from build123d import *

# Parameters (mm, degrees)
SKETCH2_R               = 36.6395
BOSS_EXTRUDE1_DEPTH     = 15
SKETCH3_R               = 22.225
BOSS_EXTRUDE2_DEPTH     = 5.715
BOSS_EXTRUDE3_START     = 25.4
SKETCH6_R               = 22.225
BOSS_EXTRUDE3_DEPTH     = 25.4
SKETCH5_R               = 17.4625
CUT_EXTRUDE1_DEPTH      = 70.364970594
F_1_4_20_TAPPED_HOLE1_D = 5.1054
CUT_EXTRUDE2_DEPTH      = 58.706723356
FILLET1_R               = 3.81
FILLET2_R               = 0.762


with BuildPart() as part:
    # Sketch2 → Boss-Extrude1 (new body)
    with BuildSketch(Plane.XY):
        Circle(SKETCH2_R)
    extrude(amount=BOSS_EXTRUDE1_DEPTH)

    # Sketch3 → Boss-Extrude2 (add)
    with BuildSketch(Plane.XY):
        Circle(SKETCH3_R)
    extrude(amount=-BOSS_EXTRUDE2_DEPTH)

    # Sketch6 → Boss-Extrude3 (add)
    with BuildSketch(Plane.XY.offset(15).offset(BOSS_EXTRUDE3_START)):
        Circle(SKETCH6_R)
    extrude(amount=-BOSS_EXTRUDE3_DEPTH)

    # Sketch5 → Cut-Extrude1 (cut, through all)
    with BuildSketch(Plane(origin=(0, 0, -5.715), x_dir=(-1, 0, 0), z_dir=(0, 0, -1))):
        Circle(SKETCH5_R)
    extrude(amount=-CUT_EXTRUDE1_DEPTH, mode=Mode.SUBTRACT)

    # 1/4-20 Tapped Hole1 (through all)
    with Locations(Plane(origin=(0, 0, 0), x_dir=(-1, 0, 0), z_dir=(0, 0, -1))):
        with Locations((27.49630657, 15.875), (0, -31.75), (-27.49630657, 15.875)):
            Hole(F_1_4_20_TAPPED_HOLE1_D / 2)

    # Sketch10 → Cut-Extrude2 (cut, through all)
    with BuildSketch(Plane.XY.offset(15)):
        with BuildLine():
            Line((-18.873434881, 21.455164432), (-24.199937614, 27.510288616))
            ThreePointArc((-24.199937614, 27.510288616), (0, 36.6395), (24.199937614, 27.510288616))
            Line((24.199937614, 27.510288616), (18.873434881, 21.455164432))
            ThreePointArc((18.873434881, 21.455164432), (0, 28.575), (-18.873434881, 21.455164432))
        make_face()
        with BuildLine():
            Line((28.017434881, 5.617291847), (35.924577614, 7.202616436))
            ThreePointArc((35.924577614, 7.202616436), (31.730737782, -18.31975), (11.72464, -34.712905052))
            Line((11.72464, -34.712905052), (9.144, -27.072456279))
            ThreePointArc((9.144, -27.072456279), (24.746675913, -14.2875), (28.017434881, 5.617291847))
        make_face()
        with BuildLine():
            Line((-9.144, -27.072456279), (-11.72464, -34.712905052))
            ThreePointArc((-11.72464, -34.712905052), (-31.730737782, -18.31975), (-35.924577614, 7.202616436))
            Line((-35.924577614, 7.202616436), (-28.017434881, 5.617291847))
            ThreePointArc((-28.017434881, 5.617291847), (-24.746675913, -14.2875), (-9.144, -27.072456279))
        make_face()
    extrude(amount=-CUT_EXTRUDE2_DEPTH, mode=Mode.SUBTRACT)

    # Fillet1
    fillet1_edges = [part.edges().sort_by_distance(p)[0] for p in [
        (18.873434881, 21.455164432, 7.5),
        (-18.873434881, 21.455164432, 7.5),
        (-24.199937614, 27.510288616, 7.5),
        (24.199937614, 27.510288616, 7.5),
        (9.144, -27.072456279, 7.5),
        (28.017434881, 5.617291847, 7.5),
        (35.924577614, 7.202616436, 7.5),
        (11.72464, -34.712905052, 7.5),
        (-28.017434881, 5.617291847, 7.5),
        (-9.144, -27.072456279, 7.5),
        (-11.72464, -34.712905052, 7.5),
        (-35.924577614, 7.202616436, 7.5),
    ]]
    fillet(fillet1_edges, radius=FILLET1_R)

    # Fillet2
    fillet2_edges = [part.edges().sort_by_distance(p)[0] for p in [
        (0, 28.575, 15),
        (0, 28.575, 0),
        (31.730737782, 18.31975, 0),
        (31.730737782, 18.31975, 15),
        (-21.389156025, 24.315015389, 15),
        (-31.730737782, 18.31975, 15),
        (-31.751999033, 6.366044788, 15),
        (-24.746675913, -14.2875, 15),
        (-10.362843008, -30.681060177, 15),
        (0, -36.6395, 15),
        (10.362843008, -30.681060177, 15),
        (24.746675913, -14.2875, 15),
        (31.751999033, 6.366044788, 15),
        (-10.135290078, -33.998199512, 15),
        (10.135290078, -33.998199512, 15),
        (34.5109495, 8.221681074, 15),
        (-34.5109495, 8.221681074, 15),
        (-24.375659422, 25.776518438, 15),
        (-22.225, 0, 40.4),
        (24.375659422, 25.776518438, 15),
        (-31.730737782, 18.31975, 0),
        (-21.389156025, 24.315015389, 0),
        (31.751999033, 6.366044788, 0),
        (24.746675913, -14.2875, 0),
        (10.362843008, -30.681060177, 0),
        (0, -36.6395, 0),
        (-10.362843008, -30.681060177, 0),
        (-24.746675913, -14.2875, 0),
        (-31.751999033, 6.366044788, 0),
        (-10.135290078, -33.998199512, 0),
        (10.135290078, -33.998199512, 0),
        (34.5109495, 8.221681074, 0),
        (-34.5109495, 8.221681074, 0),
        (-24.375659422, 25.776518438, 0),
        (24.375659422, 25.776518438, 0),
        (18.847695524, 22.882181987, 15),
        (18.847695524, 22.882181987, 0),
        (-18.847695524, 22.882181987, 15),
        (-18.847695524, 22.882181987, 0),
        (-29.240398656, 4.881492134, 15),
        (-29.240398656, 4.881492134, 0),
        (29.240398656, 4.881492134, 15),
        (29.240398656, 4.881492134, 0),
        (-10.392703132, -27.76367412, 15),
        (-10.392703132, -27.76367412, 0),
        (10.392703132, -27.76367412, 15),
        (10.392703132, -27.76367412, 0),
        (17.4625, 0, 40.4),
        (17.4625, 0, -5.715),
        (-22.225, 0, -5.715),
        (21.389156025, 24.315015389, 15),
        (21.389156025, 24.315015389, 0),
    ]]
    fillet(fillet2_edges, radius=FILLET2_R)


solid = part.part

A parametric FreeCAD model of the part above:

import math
import FreeCAD as App
import Part
import Sketcher
Q = App.Units.Quantity


def edges_at(feature, points):
    """Names of the edges that pass closest to the given points."""
    edges = feature.Shape.Edges
    near = lambda p: min(range(len(edges)), key=lambda i: edges[i].distToShape(Part.Vertex(*p))[0])
    return sorted({f"Edge{near(p) + 1}" for p in points})

doc = App.newDocument("Part")
body = doc.addObject("PartDesign::Body", "Body")

sketch1 = body.newObject("Sketcher::SketchObject", "Sketch")
sketch1.AttachmentSupport = (doc.getObject("XY_Plane"), [""])
sketch1.MapMode = "FlatFace"
sketch1.addGeometry(Part.Circle(App.Vector(0, 0, 0), App.Vector(0, 0, 1), 37), False)
sketch1.addConstraint([
    Sketcher.Constraint("Coincident", 0, 3, -1, 1),
    Sketcher.Constraint("Diameter", 0, Q("2.885 in")),
])
pad1 = body.newObject("PartDesign::Pad", "Pad")
pad1.Profile = sketch1
pad1.Length = 15

sketch2 = body.newObject("Sketcher::SketchObject", "Sketch001")
sketch2.AttachmentSupport = (doc.getObject("XY_Plane"), [""])
sketch2.MapMode = "FlatFace"
sketch2.addGeometry(Part.Circle(App.Vector(0, 0, 0), App.Vector(0, 0, 1), 22), False)
sketch2.addConstraint([
    Sketcher.Constraint("Coincident", 0, 3, -1, 1),
    Sketcher.Constraint("Diameter", 0, Q("1.75 in")),
])
pad2 = body.newObject("PartDesign::Pad", "Pad001")
pad2.Profile = sketch2
pad2.Length = Q("0.225 in")
pad2.Reversed = True

sketch3 = body.newObject("Sketcher::SketchObject", "Sketch002")
sketch3.AttachmentSupport = (doc.getObject("XY_Plane"), [""])
sketch3.MapMode = "FlatFace"
sketch3.AttachmentOffset = App.Placement(App.Vector(0, 0, 40.4), App.Rotation())
sketch3.addGeometry(Part.Circle(App.Vector(0, 0, 0), App.Vector(0, 0, 1), 22), False)
sketch3.addConstraint([
    Sketcher.Constraint("Coincident", 0, 3, -1, 1),
    Sketcher.Constraint("Diameter", 0, Q("1.75 in")),
])
pad3 = body.newObject("PartDesign::Pad", "Pad002")
pad3.Profile = sketch3
pad3.Length = Q("1 in")
pad3.Reversed = True

sketch4 = body.newObject("Sketcher::SketchObject", "Sketch003")
sketch4.AttachmentSupport = (doc.getObject("XY_Plane"), [""])
sketch4.MapMode = "FlatFace"
sketch4.AttachmentOffset = App.Placement(App.Vector(0, 0, -0.225 * 25.4), App.Rotation())
sketch4.addGeometry(Part.Circle(App.Vector(0, 0, 0), App.Vector(0, 0, 1), 17), False)
sketch4.addConstraint([
    Sketcher.Constraint("Coincident", 0, 3, -1, 1),
    Sketcher.Constraint("Diameter", 0, Q("1.375 in")),
])
pocket1 = body.newObject("PartDesign::Pocket", "Pocket")
pocket1.Profile = sketch4
pocket1.Type = "ThroughAll"
pocket1.Reversed = True

sketch5 = body.newObject("Sketcher::SketchObject", "Sketch004")
sketch5.AttachmentSupport = (doc.getObject("XY_Plane"), [""])
sketch5.MapMode = "FlatFace"
sketch5.addGeometry([
    Part.Circle(App.Vector(-27.5, 15.9, 0), App.Vector(0, 0, 1), 2.6),
    Part.Circle(App.Vector(0, -31.8, 0), App.Vector(0, 0, 1), 2.6),
    Part.Circle(App.Vector(27.5, 15.9, 0), App.Vector(0, 0, 1), 2.6),
], False)
sketch5.addConstraint([
    Sketcher.Constraint("Equal", 0, 1),
    Sketcher.Constraint("Equal", 1, 2),
    Sketcher.Constraint("Symmetric", 0, 3, 2, 3, -2),
    Sketcher.Constraint("PointOnObject", 1, 3, -2),
    Sketcher.Constraint("Diameter", 0, Q("0.201 in")),
    Sketcher.Constraint("DistanceY", 1, 3, -1, 1, Q("1.25 in")),
    Sketcher.Constraint("DistanceY", -1, 1, 0, 3, Q("0.625 in")),
    Sketcher.Constraint("DistanceX", 0, 3, -1, 1, Q("27.496307 mm")),
])
doc.recompute()
hole = body.newObject("PartDesign::Hole", "Hole")
hole.Profile = sketch5
hole.ThreadType = "None"
hole.Diameter = Q("0.201 in")
hole.DepthType = "ThroughAll"
hole.Reversed = True

sketch6 = body.newObject("Sketcher::SketchObject", "Sketch005")
sketch6.AttachmentSupport = (doc.getObject("XY_Plane"), [""])
sketch6.MapMode = "FlatFace"
sketch6.AttachmentOffset = App.Placement(App.Vector(0, 0, 15), App.Rotation())
sketch6.addGeometry([
    Part.LineSegment(App.Vector(-24, 28, 0), App.Vector(-19, 21, 0)),
    Part.ArcOfCircle(Part.Circle(App.Vector(0, 0, 0), App.Vector(0, 0, 1), 29), math.radians(49), math.radians(131)),
    Part.LineSegment(App.Vector(19, 21, 0), App.Vector(24, 28, 0)),
    Part.ArcOfCircle(Part.Circle(App.Vector(0, 0, 0), App.Vector(0, 0, 1), 37), math.radians(49), math.radians(131)),
    Part.LineSegment(App.Vector(36, 7, 0), App.Vector(28, 6, 0)),
    Part.ArcOfCircle(Part.Circle(App.Vector(0, 0, 0), App.Vector(0, 0, 1), 29), math.radians(-71), math.radians(11)),
    Part.LineSegment(App.Vector(9, -27, 0), App.Vector(12, -35, 0)),
    Part.ArcOfCircle(Part.Circle(App.Vector(0, 0, 0), App.Vector(0, 0, 1), 37), math.radians(-71), math.radians(11)),
    Part.LineSegment(App.Vector(-12, -35, 0), App.Vector(-9, -27, 0)),
    Part.ArcOfCircle(Part.Circle(App.Vector(0, 0, 0), App.Vector(0, 0, 1), 29), math.radians(169), math.radians(251)),
    Part.LineSegment(App.Vector(-28, 6, 0), App.Vector(-36, 7, 0)),
    Part.ArcOfCircle(Part.Circle(App.Vector(0, 0, 0), App.Vector(0, 0, 1), 37), math.radians(169), math.radians(251)),
], False)
sketch6.addConstraint([
    Sketcher.Constraint("Coincident", 0, 2, 1, 2),
    Sketcher.Constraint("Coincident", 1, 1, 2, 1),
    Sketcher.Constraint("Coincident", 2, 2, 3, 1),
    Sketcher.Constraint("Coincident", 3, 2, 0, 1),
    Sketcher.Constraint("Coincident", 4, 2, 5, 2),
    Sketcher.Constraint("Coincident", 5, 1, 6, 1),
    Sketcher.Constraint("Coincident", 6, 2, 7, 1),
    Sketcher.Constraint("Coincident", 7, 2, 4, 1),
    Sketcher.Constraint("Coincident", 8, 2, 9, 2),
    Sketcher.Constraint("Coincident", 9, 1, 10, 1),
    Sketcher.Constraint("Coincident", 10, 2, 11, 1),
    Sketcher.Constraint("Coincident", 11, 2, 8, 1),
    Sketcher.Constraint("Coincident", 1, 3, -1, 1),
    Sketcher.Constraint("Coincident", 3, 3, -1, 1),
    Sketcher.Constraint("Coincident", 5, 3, -1, 1),
    Sketcher.Constraint("Coincident", 7, 3, -1, 1),
    Sketcher.Constraint("Coincident", 9, 3, -1, 1),
    Sketcher.Constraint("Coincident", 11, 3, -1, 1),
    Sketcher.Constraint("Equal", 1, 5),
    Sketcher.Constraint("Equal", 3, 7),
    Sketcher.Constraint("Equal", 5, 9),
    Sketcher.Constraint("Equal", 7, 11),
    Sketcher.Constraint("Horizontal", 0, 2, 1, 1),
    Sketcher.Constraint("Horizontal", 2, 2, 3, 2),
    Sketcher.Constraint("Horizontal", 5, 1, 8, 2),
    Sketcher.Constraint("Horizontal", 4, 2, 9, 1),
    Sketcher.Constraint("Horizontal", 7, 2, 10, 2),
    Sketcher.Constraint("Horizontal", 6, 2, 11, 2),
    Sketcher.Constraint("Radius", 1, Q("1.125 in")),
    Sketcher.Constraint("Radius", 3, Q("1.4425 in")),
    Sketcher.Constraint("DistanceX", -1, 1, 5, 1, Q("0.36 in")),
    Sketcher.Constraint("DistanceX", 1, 1, 4, 2, Q("0.36 in")),
    Sketcher.Constraint("DistanceX", -1, 1, 6, 2, Q("0.4616 in")),
    Sketcher.Constraint("DistanceX", 2, 2, 7, 2, Q("0.4616 in")),
    Sketcher.Constraint("DistanceY", -1, 1, 2, 2, Q("27.510289 mm")),
    Sketcher.Constraint("DistanceY", -1, 1, 4, 2, Q("5.617292 mm")),
])
pocket2 = body.newObject("PartDesign::Pocket", "Pocket001")
pocket2.Profile = sketch6
pocket2.Type = "ThroughAll"
doc.recompute()

fillet = body.newObject("PartDesign::Fillet", "Fillet")
fillet.Base = (pocket2, edges_at(pocket2, [
    (18.873, 21.455, 7.5),
    (-18.873, 21.455, 7.5),
    (-24.2, 27.51, 7.5),
    (24.2, 27.51, 7.5),
    (9.144, -27.072, 7.5),
    (28.017, 5.617, 7.5),
    (35.925, 7.203, 7.5),
    (11.725, -34.713, 7.5),
    (-28.017, 5.617, 7.5),
    (-9.144, -27.072, 7.5),
    (-11.725, -34.713, 7.5),
    (-35.925, 7.203, 7.5),
]))
fillet.Radius = Q("0.15 in")
doc.recompute()

fillet2 = body.newObject("PartDesign::Fillet", "Fillet001")
fillet2.Base = (fillet, edges_at(fillet, [
    (0, 28.575, 15),
    (0, 28.575, 0),
    (31.731, 18.32, 0),
    (31.731, 18.32, 15),
    (-21.389, 24.315, 15),
    (-31.731, 18.32, 15),
    (-31.752, 6.366, 15),
    (-24.747, -14.287, 15),
    (-10.363, -30.681, 15),
    (0, -36.639, 15),
    (10.363, -30.681, 15),
    (24.747, -14.287, 15),
    (31.752, 6.366, 15),
    (-10.135, -33.998, 15),
    (10.135, -33.998, 15),
    (34.511, 8.222, 15),
    (-34.511, 8.222, 15),
    (-24.376, 25.777, 15),
    (-22.225, 0, 40.4),
    (24.376, 25.777, 15),
    (-31.731, 18.32, 0),
    (-21.389, 24.315, 0),
    (31.752, 6.366, 0),
    (24.747, -14.287, 0),
    (10.363, -30.681, 0),
    (0, -36.639, 0),
    (-10.363, -30.681, 0),
    (-24.747, -14.287, 0),
    (-31.752, 6.366, 0),
    (-10.135, -33.998, 0),
    (10.135, -33.998, 0),
    (34.511, 8.222, 0),
    (-34.511, 8.222, 0),
    (-24.376, 25.777, 0),
    (24.376, 25.777, 0),
    (18.848, 22.882, 15),
    (18.848, 22.882, 0),
    (-18.848, 22.882, 15),
    (-18.848, 22.882, 0),
    (-29.24, 4.881, 15),
    (-29.24, 4.881, 0),
    (29.24, 4.881, 15),
    (29.24, 4.881, 0),
    (-10.393, -27.764, 15),
    (-10.393, -27.764, 0),
    (10.393, -27.764, 15),
    (10.393, -27.764, 0),
    (17.462, 0, 40.4),
    (17.462, 0, -5.715),
    (-22.225, 0, -5.715),
    (21.389, 24.315, 15),
    (21.389, 24.315, 0),
]))
fillet2.Radius = Q("0.03 in")

doc.recompute()
